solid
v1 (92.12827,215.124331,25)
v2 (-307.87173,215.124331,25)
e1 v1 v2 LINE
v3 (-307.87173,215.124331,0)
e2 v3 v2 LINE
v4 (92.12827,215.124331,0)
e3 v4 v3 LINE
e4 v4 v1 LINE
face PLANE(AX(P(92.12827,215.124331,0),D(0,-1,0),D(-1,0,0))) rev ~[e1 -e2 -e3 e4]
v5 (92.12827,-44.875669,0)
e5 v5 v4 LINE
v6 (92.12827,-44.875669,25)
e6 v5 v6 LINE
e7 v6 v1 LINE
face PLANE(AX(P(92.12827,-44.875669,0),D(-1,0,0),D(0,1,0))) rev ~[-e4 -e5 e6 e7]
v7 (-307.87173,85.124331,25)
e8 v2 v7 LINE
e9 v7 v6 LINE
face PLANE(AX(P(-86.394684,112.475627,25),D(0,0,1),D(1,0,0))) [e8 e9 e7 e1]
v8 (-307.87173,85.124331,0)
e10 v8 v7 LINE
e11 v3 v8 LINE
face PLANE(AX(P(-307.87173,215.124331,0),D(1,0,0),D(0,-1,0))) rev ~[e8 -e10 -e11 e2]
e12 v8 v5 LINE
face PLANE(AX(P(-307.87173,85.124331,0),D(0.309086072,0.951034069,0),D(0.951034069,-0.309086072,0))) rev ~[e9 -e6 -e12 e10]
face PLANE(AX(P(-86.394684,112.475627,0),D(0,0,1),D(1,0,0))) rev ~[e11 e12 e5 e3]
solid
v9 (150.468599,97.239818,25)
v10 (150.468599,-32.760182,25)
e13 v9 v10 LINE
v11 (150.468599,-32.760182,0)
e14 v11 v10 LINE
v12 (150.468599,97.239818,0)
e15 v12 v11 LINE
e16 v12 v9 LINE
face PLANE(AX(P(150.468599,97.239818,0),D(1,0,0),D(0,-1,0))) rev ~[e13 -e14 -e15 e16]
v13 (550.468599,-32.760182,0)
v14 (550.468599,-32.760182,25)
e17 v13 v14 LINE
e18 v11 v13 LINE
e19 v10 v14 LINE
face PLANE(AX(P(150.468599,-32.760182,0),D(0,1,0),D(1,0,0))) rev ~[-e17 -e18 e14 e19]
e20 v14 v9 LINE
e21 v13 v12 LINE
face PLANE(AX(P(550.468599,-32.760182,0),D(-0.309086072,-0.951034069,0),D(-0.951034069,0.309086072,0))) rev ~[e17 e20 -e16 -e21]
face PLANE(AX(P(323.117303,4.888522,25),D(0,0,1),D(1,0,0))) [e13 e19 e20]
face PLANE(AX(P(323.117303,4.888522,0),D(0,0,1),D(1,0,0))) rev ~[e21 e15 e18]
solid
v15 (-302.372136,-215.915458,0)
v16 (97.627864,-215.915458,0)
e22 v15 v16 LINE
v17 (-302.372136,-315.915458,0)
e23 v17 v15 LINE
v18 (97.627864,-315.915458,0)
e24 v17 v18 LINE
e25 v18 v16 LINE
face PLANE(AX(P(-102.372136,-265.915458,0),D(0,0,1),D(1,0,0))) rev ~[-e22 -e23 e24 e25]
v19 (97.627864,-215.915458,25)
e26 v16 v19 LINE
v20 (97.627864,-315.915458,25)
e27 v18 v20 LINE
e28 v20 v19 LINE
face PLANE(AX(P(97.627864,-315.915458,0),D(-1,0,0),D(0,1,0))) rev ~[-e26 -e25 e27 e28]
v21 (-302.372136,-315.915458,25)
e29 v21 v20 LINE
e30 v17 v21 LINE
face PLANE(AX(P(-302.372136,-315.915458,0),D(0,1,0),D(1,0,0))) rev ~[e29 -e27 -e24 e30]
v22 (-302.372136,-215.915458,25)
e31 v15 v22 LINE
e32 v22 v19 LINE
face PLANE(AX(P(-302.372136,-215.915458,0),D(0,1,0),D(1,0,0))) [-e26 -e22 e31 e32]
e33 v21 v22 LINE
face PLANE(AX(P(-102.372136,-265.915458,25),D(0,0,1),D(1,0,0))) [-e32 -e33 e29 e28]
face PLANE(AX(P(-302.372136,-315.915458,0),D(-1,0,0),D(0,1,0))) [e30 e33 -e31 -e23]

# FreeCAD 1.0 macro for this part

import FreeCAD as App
import Part
import Sketcher

V = App.Vector
Q = App.Units.Quantity

doc = App.newDocument("Part")
body = doc.addObject("PartDesign::Body", "Body")
body.AllowCompound = True

# Sketch on XY plane
sketch1 = doc.addObject("Sketcher::SketchObject", "Sketch")
body.addObject(sketch1)
sketch1.AttachmentSupport = (doc.XY_Plane, [""])
sketch1.MapMode = "FlatFace"
sketch1.addGeometry(Part.LineSegment(V(-302.372136, -215.915458, 0), V(-302.372136, -315.915458, 0)), False)
sketch1.addGeometry(Part.LineSegment(V(-302.372136, -315.915458, 0), V(97.627864, -315.915458, 0)), False)
sketch1.addGeometry(Part.LineSegment(V(97.627864, -315.915458, 0), V(97.627864, -215.915458, 0)), False)
sketch1.addGeometry(Part.LineSegment(V(97.627864, -215.915458, 0), V(-302.372136, -215.915458, 0)), False)
sketch1.addGeometry(Part.LineSegment(V(92.12827, 215.124331, 0), V(-307.87173, 215.124331, 0)), False)
sketch1.addGeometry(Part.LineSegment(V(-307.87173, 215.124331, 0), V(-307.87173, 85.124331, 0)), False)
sketch1.addGeometry(Part.LineSegment(V(-307.87173, 85.124331, 0), V(92.12827, -44.875669, 0)), False)
sketch1.addGeometry(Part.LineSegment(V(92.12827, -44.875669, 0), V(92.12827, 215.124331, 0)), False)
sketch1.addGeometry(Part.LineSegment(V(150.468599, 97.239818, 0), V(150.468599, -32.760182, 0)), False)
sketch1.addGeometry(Part.LineSegment(V(150.468599, -32.760182, 0), V(550.468599, -32.760182, 0)), False)
sketch1.addGeometry(Part.LineSegment(V(550.468599, -32.760182, 0), V(150.468599, 97.239818, 0)), False)
sketch1.addConstraint(Sketcher.Constraint("Coincident", 0, 2, 1, 1))
sketch1.addConstraint(Sketcher.Constraint("Coincident", 1, 2, 2, 1))
sketch1.addConstraint(Sketcher.Constraint("Coincident", 2, 2, 3, 1))
sketch1.addConstraint(Sketcher.Constraint("Coincident", 3, 2, 0, 1))
sketch1.addConstraint(Sketcher.Constraint("Coincident", 4, 2, 5, 1))
sketch1.addConstraint(Sketcher.Constraint("Coincident", 5, 2, 6, 1))
sketch1.addConstraint(Sketcher.Constraint("Coincident", 6, 2, 7, 1))
sketch1.addConstraint(Sketcher.Constraint("Coincident", 7, 2, 4, 1))
sketch1.addConstraint(Sketcher.Constraint("Coincident", 8, 2, 9, 1))
sketch1.addConstraint(Sketcher.Constraint("Coincident", 9, 2, 10, 1))
sketch1.addConstraint(Sketcher.Constraint("Coincident", 10, 2, 8, 1))
sketch1.addConstraint(Sketcher.Constraint("Vertical", 0))
sketch1.addConstraint(Sketcher.Constraint("Horizontal", 1))
sketch1.addConstraint(Sketcher.Constraint("Vertical", 2))
sketch1.addConstraint(Sketcher.Constraint("Horizontal", 3))
sketch1.addConstraint(Sketcher.Constraint("Horizontal", 4))
sketch1.addConstraint(Sketcher.Constraint("Vertical", 5))
sketch1.addConstraint(Sketcher.Constraint("Vertical", 7))
sketch1.addConstraint(Sketcher.Constraint("Vertical", 8))
sketch1.addConstraint(Sketcher.Constraint("Horizontal", 9))
sketch1.addConstraint(Sketcher.Constraint("Parallel", 6, 10))
sketch1.addConstraint(Sketcher.Constraint("Equal", 3, 4))
sketch1.addConstraint(Sketcher.Constraint("Equal", 4, 9))
sketch1.addConstraint(Sketcher.Constraint("Equal", 5, 8))
sketch1.addConstraint(Sketcher.Constraint("DistanceX", 1, 1, 1, 2, Q("400 mm")))
sketch1.addConstraint(Sketcher.Constraint("DistanceY", 0, 2, 0, 1, Q("100 mm")))
sketch1.addConstraint(Sketcher.Constraint("DistanceY", 5, 2, 5, 1, Q("130 mm")))
sketch1.addConstraint(Sketcher.Constraint("DistanceX", -1, 1, 8, 2, Q("150.468599 mm")))
sketch1.addConstraint(Sketcher.Constraint("DistanceY", 0, 2, -1, 1, Q("315.915458 mm")))
sketch1.addConstraint(Sketcher.Constraint("DistanceX", 4, 2, -1, 1, Q("307.87173 mm")))
sketch1.addConstraint(Sketcher.Constraint("DistanceY", -1, 1, 4, 2, Q("215.124331 mm")))
sketch1.addConstraint(Sketcher.Constraint("DistanceY", -1, 1, 10, 2, Q("97.239818 mm")))
sketch1.addConstraint(Sketcher.Constraint("DistanceX", 0, 2, -1, 1, Q("302.372136 mm")))
pad1 = doc.addObject("PartDesign::Pad", "Pad")
body.addObject(pad1)
pad1.Profile = sketch1
pad1.Length = 25

doc.recompute()
